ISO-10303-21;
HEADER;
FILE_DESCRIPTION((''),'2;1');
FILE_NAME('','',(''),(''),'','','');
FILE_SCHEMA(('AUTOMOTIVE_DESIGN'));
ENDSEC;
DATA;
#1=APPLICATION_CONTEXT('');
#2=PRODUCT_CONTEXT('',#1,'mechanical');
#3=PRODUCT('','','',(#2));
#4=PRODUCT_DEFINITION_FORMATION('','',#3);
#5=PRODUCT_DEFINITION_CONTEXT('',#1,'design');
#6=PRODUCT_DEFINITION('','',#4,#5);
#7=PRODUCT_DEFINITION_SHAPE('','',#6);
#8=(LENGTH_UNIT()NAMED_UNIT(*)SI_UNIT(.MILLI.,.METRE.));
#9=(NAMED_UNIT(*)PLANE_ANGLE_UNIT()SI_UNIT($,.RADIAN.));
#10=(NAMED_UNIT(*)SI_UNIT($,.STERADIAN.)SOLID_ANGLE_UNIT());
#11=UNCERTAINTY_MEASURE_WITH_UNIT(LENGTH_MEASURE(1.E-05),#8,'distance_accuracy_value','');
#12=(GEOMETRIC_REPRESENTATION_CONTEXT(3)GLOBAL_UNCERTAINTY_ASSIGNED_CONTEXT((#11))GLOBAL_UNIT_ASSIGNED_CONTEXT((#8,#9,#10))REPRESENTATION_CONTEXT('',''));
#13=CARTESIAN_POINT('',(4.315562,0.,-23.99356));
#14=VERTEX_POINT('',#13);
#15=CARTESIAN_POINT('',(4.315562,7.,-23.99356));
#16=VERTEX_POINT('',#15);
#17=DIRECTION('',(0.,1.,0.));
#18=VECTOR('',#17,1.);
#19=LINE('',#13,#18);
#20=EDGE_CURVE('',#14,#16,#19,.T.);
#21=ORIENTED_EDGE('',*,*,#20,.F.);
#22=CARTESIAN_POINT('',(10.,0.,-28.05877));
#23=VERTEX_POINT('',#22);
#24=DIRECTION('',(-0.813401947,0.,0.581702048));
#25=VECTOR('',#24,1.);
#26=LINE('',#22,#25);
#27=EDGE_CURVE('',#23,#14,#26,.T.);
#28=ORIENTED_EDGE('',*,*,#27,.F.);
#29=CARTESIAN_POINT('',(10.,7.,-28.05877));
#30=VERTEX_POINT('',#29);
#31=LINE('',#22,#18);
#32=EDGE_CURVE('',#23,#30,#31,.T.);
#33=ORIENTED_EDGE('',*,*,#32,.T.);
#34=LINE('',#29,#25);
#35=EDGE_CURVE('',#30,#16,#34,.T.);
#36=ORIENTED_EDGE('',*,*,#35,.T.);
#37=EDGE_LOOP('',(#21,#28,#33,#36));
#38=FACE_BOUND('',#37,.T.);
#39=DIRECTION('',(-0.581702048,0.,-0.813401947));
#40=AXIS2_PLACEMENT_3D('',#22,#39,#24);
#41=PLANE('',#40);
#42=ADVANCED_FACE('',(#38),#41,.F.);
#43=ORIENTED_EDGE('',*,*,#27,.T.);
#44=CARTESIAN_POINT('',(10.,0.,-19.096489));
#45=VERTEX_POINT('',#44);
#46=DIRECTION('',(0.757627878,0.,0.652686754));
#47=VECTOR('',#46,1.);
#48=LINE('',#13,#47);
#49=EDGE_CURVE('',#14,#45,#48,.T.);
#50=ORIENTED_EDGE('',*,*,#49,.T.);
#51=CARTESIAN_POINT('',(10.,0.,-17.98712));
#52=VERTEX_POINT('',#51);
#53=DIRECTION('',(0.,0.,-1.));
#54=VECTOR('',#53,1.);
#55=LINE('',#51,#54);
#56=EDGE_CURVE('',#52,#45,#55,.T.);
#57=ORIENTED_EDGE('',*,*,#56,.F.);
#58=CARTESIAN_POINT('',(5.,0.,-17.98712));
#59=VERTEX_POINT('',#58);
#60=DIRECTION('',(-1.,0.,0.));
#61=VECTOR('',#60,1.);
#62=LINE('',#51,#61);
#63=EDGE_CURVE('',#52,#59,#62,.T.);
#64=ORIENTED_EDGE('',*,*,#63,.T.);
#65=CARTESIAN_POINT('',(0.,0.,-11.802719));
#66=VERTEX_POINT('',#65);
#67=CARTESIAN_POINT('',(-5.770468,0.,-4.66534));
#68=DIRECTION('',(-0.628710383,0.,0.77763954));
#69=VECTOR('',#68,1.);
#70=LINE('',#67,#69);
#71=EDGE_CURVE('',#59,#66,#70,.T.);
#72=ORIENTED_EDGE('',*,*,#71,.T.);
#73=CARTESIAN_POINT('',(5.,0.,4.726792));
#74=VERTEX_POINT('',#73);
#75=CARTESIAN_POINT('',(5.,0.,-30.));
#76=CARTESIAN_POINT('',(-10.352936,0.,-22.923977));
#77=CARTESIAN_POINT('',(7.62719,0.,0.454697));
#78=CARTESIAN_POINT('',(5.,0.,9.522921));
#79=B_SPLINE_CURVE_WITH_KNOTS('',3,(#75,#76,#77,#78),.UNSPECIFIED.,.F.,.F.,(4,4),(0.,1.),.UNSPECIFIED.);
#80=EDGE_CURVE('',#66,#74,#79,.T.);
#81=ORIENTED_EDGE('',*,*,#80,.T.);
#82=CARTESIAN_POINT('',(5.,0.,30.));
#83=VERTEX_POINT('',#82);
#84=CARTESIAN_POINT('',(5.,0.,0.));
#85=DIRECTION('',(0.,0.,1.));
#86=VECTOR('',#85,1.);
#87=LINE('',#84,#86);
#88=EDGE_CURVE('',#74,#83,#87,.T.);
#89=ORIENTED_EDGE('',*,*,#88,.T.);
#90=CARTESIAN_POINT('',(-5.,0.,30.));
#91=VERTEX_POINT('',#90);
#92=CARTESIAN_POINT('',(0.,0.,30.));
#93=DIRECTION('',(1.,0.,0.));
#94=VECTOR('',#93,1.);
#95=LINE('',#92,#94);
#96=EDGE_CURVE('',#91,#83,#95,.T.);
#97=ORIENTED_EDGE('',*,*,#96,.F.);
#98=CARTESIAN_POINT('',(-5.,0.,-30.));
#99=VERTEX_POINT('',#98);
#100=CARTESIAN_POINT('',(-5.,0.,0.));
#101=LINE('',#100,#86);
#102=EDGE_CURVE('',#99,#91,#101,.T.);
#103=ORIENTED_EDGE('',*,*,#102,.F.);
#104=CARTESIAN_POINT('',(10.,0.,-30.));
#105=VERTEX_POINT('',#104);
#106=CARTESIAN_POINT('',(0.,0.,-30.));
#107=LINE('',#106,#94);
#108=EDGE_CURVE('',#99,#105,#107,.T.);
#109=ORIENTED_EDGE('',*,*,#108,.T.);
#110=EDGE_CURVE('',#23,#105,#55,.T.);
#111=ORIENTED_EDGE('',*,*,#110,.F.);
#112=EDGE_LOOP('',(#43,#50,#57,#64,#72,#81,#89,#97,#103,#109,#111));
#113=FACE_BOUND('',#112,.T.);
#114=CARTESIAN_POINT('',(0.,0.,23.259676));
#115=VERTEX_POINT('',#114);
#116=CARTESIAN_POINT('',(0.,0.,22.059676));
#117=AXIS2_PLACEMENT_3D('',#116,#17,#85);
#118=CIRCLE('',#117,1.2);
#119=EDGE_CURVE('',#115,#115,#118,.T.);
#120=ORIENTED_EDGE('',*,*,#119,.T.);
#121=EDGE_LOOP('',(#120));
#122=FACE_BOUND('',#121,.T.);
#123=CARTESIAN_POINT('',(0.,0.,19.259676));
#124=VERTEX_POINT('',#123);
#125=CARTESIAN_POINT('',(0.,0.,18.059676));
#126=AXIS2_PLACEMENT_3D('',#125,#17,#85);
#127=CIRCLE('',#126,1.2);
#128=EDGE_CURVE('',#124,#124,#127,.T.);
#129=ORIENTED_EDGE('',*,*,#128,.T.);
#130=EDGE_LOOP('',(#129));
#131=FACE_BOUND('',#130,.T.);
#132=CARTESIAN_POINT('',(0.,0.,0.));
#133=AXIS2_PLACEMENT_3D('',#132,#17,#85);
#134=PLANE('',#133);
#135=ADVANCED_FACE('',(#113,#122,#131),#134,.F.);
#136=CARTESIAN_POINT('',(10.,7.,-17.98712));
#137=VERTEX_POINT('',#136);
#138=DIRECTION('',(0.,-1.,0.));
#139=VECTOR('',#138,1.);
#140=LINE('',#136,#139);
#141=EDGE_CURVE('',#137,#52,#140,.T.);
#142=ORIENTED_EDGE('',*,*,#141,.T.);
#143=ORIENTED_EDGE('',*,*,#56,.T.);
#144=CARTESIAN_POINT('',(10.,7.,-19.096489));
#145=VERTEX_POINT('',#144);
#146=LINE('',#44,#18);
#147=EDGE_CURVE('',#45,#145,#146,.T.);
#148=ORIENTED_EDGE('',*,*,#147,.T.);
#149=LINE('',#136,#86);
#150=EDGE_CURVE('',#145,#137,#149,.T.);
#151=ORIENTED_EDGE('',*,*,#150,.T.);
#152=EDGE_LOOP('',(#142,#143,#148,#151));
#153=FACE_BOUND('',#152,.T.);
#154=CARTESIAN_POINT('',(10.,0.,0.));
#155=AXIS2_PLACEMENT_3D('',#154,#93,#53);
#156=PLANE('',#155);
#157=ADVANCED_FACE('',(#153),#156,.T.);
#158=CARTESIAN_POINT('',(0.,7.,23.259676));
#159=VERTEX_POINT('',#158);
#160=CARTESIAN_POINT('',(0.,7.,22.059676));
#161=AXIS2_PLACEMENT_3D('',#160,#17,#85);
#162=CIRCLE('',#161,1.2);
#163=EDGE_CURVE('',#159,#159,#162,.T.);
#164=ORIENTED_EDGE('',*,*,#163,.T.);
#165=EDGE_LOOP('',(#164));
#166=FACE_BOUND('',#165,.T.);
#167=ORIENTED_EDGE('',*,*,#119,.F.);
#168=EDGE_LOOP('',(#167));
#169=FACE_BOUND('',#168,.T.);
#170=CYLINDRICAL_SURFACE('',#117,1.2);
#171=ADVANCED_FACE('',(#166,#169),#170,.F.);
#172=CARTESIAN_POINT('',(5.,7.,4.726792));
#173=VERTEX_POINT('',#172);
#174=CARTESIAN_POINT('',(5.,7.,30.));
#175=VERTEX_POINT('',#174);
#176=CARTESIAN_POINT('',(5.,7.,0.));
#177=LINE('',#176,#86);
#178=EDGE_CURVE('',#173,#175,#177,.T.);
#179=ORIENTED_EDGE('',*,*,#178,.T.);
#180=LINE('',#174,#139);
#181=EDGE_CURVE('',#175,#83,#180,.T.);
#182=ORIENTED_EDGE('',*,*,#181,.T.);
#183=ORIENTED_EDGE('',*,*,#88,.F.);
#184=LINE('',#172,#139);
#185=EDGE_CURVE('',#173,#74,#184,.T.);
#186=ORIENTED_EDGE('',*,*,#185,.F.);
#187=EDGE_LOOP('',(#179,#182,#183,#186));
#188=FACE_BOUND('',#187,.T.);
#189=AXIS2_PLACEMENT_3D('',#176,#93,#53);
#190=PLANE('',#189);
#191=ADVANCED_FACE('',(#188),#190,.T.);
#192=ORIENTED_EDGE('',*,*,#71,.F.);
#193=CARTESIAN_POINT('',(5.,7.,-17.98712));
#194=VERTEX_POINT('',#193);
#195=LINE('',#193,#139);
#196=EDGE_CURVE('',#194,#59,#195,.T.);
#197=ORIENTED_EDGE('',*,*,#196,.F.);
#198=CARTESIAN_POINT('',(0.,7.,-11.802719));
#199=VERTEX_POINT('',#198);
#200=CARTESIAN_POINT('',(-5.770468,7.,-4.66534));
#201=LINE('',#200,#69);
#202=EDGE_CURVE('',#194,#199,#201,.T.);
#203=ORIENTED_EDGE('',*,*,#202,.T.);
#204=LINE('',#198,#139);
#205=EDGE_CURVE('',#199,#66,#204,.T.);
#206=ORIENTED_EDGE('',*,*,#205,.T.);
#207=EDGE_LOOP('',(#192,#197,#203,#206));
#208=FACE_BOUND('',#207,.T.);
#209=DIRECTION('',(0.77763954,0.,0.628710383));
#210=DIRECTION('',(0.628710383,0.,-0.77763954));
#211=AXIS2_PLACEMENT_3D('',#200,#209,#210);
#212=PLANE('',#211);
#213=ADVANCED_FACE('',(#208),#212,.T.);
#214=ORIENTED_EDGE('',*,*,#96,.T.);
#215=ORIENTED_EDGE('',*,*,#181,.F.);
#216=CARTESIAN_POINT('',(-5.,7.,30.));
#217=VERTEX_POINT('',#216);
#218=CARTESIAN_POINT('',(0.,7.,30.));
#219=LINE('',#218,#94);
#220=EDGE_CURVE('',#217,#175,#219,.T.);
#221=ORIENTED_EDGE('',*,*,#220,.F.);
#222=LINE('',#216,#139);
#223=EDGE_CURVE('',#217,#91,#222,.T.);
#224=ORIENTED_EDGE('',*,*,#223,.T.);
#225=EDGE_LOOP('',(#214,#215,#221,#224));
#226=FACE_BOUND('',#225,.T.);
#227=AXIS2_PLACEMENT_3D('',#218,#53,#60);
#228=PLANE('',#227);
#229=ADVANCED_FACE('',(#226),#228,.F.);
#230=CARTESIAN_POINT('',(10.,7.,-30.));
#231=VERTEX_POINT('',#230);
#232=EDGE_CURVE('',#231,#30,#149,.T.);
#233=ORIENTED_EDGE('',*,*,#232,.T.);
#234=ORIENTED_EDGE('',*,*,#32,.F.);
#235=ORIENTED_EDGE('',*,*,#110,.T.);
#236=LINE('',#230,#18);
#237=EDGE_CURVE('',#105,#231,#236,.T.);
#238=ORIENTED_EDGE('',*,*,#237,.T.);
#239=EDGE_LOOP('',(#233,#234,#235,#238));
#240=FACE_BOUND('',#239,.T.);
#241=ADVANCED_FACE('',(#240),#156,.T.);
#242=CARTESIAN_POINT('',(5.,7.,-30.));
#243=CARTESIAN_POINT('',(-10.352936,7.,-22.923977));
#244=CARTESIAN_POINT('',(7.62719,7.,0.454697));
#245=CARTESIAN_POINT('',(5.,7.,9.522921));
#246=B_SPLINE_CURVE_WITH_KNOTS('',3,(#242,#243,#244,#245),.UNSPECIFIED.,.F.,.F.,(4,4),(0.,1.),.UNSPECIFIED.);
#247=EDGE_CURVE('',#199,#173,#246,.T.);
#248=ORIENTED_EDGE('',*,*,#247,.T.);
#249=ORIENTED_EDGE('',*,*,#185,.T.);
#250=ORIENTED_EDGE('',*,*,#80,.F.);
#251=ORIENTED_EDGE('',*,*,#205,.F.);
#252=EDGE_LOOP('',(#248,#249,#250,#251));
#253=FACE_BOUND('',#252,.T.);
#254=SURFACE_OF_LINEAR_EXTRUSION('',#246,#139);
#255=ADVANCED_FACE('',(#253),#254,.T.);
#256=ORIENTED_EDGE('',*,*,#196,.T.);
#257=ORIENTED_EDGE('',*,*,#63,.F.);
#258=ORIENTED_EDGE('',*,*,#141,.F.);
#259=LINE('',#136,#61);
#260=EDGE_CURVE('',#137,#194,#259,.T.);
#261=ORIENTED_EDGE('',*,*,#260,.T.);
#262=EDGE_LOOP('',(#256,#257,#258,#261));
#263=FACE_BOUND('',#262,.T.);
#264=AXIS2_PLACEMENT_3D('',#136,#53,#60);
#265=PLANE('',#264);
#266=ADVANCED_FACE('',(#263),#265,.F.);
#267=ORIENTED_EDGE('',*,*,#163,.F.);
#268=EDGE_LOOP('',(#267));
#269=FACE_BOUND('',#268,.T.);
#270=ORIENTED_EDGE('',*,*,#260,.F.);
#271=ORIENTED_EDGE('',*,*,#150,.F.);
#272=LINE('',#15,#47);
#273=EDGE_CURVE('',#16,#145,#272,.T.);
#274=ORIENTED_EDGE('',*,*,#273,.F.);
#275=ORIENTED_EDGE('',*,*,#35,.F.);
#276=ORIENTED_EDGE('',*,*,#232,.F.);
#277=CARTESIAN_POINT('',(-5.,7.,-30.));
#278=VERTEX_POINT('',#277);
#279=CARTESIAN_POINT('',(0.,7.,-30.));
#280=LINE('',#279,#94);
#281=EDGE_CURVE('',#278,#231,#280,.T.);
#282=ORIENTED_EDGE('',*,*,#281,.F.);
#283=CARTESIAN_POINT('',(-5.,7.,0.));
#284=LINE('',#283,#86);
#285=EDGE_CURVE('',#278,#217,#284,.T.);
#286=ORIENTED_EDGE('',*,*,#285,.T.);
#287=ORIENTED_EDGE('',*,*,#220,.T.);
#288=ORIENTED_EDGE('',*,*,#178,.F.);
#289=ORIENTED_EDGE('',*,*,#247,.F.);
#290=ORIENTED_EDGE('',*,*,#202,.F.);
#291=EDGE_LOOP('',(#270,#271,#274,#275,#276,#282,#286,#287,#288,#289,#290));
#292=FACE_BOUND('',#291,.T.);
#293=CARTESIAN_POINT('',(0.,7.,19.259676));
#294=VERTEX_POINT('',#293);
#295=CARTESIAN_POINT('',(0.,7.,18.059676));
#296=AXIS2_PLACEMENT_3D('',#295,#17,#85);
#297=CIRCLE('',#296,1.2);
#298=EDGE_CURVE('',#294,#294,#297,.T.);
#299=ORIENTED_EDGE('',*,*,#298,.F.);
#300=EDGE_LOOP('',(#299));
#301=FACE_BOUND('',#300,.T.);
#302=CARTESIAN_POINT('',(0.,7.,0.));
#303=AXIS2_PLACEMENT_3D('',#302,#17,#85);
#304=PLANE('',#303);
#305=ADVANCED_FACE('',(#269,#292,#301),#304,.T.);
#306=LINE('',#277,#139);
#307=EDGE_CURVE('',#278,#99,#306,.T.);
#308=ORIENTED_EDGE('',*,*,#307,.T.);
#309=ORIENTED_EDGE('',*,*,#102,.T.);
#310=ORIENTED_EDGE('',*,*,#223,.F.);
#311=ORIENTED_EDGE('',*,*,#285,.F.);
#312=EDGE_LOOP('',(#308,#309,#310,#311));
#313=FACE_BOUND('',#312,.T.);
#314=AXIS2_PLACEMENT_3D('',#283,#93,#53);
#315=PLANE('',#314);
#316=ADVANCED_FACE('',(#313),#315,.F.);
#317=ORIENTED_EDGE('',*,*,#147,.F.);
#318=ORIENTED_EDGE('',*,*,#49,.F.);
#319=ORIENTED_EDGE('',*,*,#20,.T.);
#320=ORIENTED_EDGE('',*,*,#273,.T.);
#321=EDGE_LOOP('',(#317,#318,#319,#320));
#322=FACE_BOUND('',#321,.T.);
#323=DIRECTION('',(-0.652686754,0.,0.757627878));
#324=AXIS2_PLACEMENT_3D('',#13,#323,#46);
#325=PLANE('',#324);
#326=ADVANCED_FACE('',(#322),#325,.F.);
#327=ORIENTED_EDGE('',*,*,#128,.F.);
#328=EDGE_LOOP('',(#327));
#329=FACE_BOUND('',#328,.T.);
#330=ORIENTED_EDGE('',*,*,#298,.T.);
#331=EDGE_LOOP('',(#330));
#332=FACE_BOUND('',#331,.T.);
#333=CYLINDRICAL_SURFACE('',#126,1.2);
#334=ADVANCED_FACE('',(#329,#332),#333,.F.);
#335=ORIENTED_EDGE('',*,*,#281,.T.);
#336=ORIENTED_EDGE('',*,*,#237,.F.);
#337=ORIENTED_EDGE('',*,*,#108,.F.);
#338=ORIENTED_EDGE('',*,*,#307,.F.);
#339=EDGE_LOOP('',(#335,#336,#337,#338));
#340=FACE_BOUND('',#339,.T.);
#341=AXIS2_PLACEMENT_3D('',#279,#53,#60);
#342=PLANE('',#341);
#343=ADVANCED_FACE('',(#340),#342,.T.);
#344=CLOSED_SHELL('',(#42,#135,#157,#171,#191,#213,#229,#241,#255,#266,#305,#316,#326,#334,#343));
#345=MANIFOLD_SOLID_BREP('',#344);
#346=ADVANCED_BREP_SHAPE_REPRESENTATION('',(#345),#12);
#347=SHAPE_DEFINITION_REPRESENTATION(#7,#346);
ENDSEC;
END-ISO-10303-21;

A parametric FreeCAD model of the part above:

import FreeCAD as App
import Part
import Sketcher


def add_polygon(sketch, points):
    """Adds a closed chain of lines whose ends are joined by coincident constraints."""
    first, n = sketch.GeometryCount, len(points)
    for a, b in zip(points, points[1:] + points[:1]):
        sketch.addGeometry(Part.LineSegment(App.Vector(*a, 0), App.Vector(*b, 0)), False)
    for i in range(n):
        sketch.addConstraint(Sketcher.Constraint("Coincident", first + i, 2, first + (i + 1) % n, 1))

doc = App.newDocument("Part")
body = doc.addObject("PartDesign::Body", "Body")

# Sketch on XZ plane
sketch1 = body.newObject("Sketcher::SketchObject", "Sketch")
sketch1.AttachmentSupport = (doc.getObject("XZ_Plane"), [""])
sketch1.MapMode = "FlatFace"
sketch1.addGeometry(Part.BSplineCurve([App.Vector(0, -11.802719, 0), App.Vector(1.580722, -5.98128, 0), App.Vector(4.167223, 0.050596, 0), App.Vector(5, 4.726792, 0)], [4, 4], [0.482657311, 0.853883687], False, 3, [1, 1, 1, 1], False), False)
sketch1.addGeometry(Part.LineSegment(App.Vector(0, -11.802719, 0), App.Vector(5, -17.98712, 0)), False)
sketch1.addGeometry(Part.LineSegment(App.Vector(5, -17.98712, 0), App.Vector(5, -30, 0)), False)
sketch1.addGeometry(Part.LineSegment(App.Vector(5, -30, 0), App.Vector(-5, -30, 0)), False)
sketch1.addGeometry(Part.LineSegment(App.Vector(-5, -30, 0), App.Vector(-5, 30, 0)), False)
sketch1.addGeometry(Part.LineSegment(App.Vector(-5, 30, 0), App.Vector(5, 30, 0)), False)
sketch1.addGeometry(Part.LineSegment(App.Vector(5, 30, 0), App.Vector(5, 4.726792, 0)), False)
sketch1.addConstraint(Sketcher.Constraint("Block", 0))
sketch1.addConstraint(Sketcher.Constraint("Coincident", 0, 1, 1, 1))
sketch1.addConstraint(Sketcher.Constraint("Coincident", 1, 2, 2, 1))
sketch1.addConstraint(Sketcher.Constraint("Coincident", 2, 2, 3, 1))
sketch1.addConstraint(Sketcher.Constraint("Coincident", 3, 2, 4, 1))
sketch1.addConstraint(Sketcher.Constraint("Coincident", 4, 2, 5, 1))
sketch1.addConstraint(Sketcher.Constraint("Coincident", 5, 2, 6, 1))
sketch1.addConstraint(Sketcher.Constraint("Coincident", 6, 2, 0, 2))
sketch1.addConstraint(Sketcher.Constraint("Vertical", 2))
sketch1.addConstraint(Sketcher.Constraint("Horizontal", 3))
sketch1.addConstraint(Sketcher.Constraint("Vertical", 4))
sketch1.addConstraint(Sketcher.Constraint("Horizontal", 5))
sketch1.addConstraint(Sketcher.Constraint("Vertical", 6))
sketch1.addConstraint(Sketcher.Constraint("Symmetric", 2, 2, 4, 2, -1, 1))
sketch1.addConstraint(Sketcher.Constraint("Vertical", 2, 2, 5, 2))
sketch1.addConstraint(Sketcher.Constraint("DistanceY", 4, 1, 4, 2, 60.0))
sketch1.addConstraint(Sketcher.Constraint("DistanceY", 2, 2, 2, 1, 12.01288))
pad1 = body.newObject("PartDesign::Pad", "Pad")
pad1.Profile = sketch1
pad1.Length = 7
pad1.Reversed = True

# Sketch on YZ plane
sketch2 = body.newObject("Sketcher::SketchObject", "Sketch001")
sketch2.AttachmentSupport = (doc.getObject("YZ_Plane"), [""])
sketch2.MapMode = "FlatFace"
sketch2.AttachmentOffset = App.Placement(App.Vector(0, 0, 5), App.Rotation())
add_polygon(sketch2, [(7, -18), (0, -18), (0, -30), (7, -30)])  # lines 0-3
sketch2.addConstraint(Sketcher.Constraint("Horizontal", 0))
sketch2.addConstraint(Sketcher.Constraint("Vertical", 1))
sketch2.addConstraint(Sketcher.Constraint("Horizontal", 2))
sketch2.addConstraint(Sketcher.Constraint("Vertical", 3))
sketch2.addConstraint(Sketcher.Constraint("PointOnObject", 0, 2, -2))
sketch2.addConstraint(Sketcher.Constraint("DistanceX", 0, 2, 0, 1, 7.0))
sketch2.addConstraint(Sketcher.Constraint("DistanceY", 1, 2, -1, 1, 30.0))
sketch2.addConstraint(Sketcher.Constraint("DistanceY", 1, 2, 1, 1, 12.01288))
pad2 = body.newObject("PartDesign::Pad", "Pad001")
pad2.Profile = sketch2
pad2.Length = 5

# Sketch on XZ plane
sketch3 = body.newObject("Sketcher::SketchObject", "Sketch002")
sketch3.AttachmentSupport = (doc.getObject("XZ_Plane"), [""])
sketch3.MapMode = "FlatFace"
sketch3.AttachmentOffset = App.Placement(App.Vector(0, 0, -7), App.Rotation())
add_polygon(sketch3, [(10, -28), (4, -24), (10, -19)])  # lines 0-2
sketch3.addConstraint(Sketcher.Constraint("Vertical", 2))
sketch3.addConstraint(Sketcher.Constraint("DistanceX", -1, 1, 1, 2, 10.0))
sketch3.addConstraint(Sketcher.Constraint("DistanceY", 2, 2, 2, 1, 8.962281))
sketch3.addConstraint(Sketcher.Constraint("DistanceX", -1, 1, 0, 2, 4.315562))
sketch3.addConstraint(Sketcher.Constraint("DistanceY", 0, 2, -1, 1, 23.99356))
sketch3.addConstraint(Sketcher.Constraint("DistanceY", 1, 2, -1, 1, 19.096489))
pocket1 = body.newObject("PartDesign::Pocket", "Pocket")
pocket1.Profile = sketch3
pocket1.Type = "ThroughAll"
pocket1.Reversed = True

# Sketch on XZ plane
sketch4 = body.newObject("Sketcher::SketchObject", "Sketch003")
sketch4.AttachmentSupport = (doc.getObject("XZ_Plane"), [""])
sketch4.MapMode = "FlatFace"
sketch4.AttachmentOffset = App.Placement(App.Vector(0, 0, -7), App.Rotation())
sketch4.addGeometry(Part.Circle(App.Vector(0, 22.1, 0), App.Vector(0, 0, 1), 1.2), False)
sketch4.addGeometry(Part.Circle(App.Vector(0, 18.1, 0), App.Vector(0, 0, 1), 1.2), False)
sketch4.addConstraint(Sketcher.Constraint("Equal", 0, 1))
sketch4.addConstraint(Sketcher.Constraint("PointOnObject", 0, 3, -2))
sketch4.addConstraint(Sketcher.Constraint("PointOnObject", 1, 3, -2))
sketch4.addConstraint(Sketcher.Constraint("Diameter", 0, 2.4))
sketch4.addConstraint(Sketcher.Constraint("DistanceY", 1, 3, 0, 3, 4.0))
sketch4.addConstraint(Sketcher.Constraint("DistanceY", -1, 1, 0, 3, 22.059676))
pocket2 = body.newObject("PartDesign::Pocket", "Pocket001")
pocket2.Profile = sketch4
pocket2.Type = "ThroughAll"
pocket2.Reversed = True

doc.recompute()
